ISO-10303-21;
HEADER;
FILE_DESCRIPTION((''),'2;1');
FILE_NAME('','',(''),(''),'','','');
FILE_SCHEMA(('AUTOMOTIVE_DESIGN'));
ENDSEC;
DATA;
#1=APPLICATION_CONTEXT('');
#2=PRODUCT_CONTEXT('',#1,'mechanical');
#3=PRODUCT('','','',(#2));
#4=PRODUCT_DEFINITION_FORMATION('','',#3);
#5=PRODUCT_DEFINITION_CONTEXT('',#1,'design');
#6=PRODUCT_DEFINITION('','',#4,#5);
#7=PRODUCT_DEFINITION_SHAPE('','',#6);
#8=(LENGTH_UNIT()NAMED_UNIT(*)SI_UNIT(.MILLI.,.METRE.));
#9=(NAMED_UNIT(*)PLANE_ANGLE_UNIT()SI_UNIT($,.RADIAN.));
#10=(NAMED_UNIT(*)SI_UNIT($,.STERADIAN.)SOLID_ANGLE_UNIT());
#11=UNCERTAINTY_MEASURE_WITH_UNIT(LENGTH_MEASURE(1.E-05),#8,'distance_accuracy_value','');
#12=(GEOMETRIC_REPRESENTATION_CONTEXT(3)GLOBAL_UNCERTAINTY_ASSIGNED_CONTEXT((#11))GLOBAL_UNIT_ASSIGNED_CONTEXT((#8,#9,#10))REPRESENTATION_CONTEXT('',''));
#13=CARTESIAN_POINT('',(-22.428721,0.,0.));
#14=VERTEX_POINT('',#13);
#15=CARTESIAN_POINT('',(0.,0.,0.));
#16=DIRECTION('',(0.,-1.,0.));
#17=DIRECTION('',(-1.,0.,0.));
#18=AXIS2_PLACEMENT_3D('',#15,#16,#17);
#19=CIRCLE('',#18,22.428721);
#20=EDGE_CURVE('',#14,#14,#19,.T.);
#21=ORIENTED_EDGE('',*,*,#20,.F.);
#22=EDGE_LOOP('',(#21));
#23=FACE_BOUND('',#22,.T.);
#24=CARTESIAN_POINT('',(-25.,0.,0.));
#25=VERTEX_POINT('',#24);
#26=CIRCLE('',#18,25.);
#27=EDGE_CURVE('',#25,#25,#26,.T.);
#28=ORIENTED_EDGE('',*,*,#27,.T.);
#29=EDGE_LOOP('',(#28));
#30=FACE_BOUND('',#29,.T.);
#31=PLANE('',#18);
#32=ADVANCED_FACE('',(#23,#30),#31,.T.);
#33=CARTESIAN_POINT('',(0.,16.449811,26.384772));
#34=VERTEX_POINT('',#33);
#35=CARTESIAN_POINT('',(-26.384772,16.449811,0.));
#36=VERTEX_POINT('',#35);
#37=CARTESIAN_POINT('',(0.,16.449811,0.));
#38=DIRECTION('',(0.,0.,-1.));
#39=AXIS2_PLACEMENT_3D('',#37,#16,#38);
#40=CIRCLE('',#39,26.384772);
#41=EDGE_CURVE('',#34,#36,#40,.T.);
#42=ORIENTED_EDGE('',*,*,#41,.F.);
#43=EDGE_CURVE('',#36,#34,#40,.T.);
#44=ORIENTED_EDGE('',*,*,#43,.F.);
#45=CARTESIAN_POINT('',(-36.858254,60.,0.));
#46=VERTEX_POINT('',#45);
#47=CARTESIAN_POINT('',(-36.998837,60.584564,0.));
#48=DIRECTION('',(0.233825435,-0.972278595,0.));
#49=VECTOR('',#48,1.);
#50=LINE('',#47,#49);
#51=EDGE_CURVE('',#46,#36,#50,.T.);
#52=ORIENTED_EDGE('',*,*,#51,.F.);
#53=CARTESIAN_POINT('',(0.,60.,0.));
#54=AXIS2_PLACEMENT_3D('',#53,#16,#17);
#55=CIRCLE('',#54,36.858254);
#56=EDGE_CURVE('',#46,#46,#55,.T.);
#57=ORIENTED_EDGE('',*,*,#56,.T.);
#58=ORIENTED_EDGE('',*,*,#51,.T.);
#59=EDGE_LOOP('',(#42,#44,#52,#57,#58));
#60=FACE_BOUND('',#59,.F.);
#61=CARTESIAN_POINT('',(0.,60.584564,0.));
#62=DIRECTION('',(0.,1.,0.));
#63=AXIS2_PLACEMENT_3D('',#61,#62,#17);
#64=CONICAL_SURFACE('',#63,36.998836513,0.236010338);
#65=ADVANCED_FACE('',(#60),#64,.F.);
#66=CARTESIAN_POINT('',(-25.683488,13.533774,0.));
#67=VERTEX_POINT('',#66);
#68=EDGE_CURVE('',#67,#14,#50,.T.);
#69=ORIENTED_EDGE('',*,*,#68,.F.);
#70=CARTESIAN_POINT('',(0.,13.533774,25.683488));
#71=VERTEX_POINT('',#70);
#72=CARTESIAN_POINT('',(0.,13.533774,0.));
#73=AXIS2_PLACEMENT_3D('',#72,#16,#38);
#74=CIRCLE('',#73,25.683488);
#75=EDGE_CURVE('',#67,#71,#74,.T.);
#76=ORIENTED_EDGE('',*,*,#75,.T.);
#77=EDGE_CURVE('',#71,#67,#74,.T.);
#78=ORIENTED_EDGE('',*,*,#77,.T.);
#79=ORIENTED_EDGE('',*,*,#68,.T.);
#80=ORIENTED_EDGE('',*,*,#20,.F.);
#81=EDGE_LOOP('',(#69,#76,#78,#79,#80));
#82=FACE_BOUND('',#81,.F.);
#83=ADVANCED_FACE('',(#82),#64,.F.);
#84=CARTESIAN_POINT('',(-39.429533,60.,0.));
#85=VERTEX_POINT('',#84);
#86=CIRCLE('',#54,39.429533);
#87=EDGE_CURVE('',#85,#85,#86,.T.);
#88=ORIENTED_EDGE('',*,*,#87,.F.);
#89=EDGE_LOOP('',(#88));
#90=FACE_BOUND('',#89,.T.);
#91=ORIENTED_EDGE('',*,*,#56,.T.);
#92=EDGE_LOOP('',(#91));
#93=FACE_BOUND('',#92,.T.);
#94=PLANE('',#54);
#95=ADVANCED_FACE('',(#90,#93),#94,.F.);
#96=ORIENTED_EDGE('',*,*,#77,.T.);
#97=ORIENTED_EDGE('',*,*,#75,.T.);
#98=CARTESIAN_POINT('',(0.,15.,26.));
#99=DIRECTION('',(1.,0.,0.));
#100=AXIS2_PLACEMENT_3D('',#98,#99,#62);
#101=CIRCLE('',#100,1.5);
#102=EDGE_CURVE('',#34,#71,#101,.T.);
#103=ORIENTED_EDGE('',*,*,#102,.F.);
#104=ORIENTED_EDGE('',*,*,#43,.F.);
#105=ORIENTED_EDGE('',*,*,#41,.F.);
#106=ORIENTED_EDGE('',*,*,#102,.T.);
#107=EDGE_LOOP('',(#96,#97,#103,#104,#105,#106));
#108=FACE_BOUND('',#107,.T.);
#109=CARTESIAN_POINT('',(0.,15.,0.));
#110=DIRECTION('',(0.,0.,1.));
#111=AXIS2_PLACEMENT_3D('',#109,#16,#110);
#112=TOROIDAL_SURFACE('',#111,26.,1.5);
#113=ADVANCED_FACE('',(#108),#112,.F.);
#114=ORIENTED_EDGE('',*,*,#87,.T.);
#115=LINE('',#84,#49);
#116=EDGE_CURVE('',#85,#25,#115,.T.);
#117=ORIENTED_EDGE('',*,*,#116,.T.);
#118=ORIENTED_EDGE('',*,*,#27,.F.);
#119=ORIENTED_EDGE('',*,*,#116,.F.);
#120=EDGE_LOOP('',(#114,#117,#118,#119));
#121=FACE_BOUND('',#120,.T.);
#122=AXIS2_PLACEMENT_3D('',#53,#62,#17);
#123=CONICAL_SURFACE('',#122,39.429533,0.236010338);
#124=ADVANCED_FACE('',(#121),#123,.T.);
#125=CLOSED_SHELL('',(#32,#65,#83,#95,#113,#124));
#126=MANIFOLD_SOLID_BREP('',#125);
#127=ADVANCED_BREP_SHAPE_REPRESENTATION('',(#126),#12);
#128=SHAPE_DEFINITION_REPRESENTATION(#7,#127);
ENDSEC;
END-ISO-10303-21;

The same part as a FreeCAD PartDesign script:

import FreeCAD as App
import Part
import Sketcher


def faces_at(feature, points):
    """Names of the faces that lie closest to the given points."""
    faces = feature.Shape.Faces
    near = lambda p: min(range(len(faces)), key=lambda i: faces[i].distToShape(Part.Vertex(*p))[0])
    return sorted({f"Face{near(p) + 1}" for p in points})

doc = App.newDocument("Part")
body = doc.addObject("PartDesign::Body", "Body")

# Sketch on XY plane
sketch1 = body.newObject("Sketcher::SketchObject", "Sketch")
sketch1.AttachmentSupport = (doc.getObject("XY_Plane"), [""])
sketch1.MapMode = "FlatFace"
sketch1.addGeometry(Part.LineSegment(App.Vector(-39, 60, 0), App.Vector(-25, 0, 0)), False)
sketch1.addGeometry(Part.LineSegment(App.Vector(-25, 0, 0), App.Vector(0, 0, 0)), False)
sketch1.addGeometry(Part.LineSegment(App.Vector(0, 0, 0), App.Vector(0, 60, 0)), False)
sketch1.addGeometry(Part.LineSegment(App.Vector(0, 60, 0), App.Vector(-39, 60, 0)), False)
sketch1.addConstraint(Sketcher.Constraint("Coincident", 0, 2, 1, 1))
sketch1.addConstraint(Sketcher.Constraint("Coincident", 1, 2, 2, 1))
sketch1.addConstraint(Sketcher.Constraint("Coincident", 2, 2, 3, 1))
sketch1.addConstraint(Sketcher.Constraint("Coincident", 3, 2, 0, 1))
sketch1.addConstraint(Sketcher.Constraint("Horizontal", 1))
sketch1.addConstraint(Sketcher.Constraint("Vertical", 2))
sketch1.addConstraint(Sketcher.Constraint("Horizontal", 3))
sketch1.addConstraint(Sketcher.Constraint("Coincident", 1, 2, -1, 1))
sketch1.addConstraint(Sketcher.Constraint("DistanceX", 1, 1, 1, 2, 25.0))
sketch1.addConstraint(Sketcher.Constraint("DistanceY", 2, 1, 2, 2, 60.0))
sketch1.addConstraint(Sketcher.Constraint("DistanceX", 3, 2, 3, 1, 39.429533))
revolution = body.newObject("PartDesign::Revolution", "Revolution")
revolution.Profile = sketch1
revolution.ReferenceAxis = (sketch1, ["V_Axis"])
revolution.Angle = 360
doc.recompute()

thickness = body.newObject("PartDesign::Thickness", "Thickness")
thickness.Base = (revolution, faces_at(revolution, [(0, 60, 0), (0, 0, 0)]))
thickness.Value = 2.5
thickness.Reversed = True
thickness.Join = "Arc"

# Sketch on YZ plane
sketch2 = body.newObject("Sketcher::SketchObject", "Sketch001")
sketch2.AttachmentSupport = (doc.getObject("YZ_Plane"), [""])
sketch2.MapMode = "FlatFace"
sketch2.addGeometry(Part.Circle(App.Vector(15, 26, 0), App.Vector(0, 0, 1), 1.5), False)
sketch2.addConstraint(Sketcher.Constraint("Diameter", 0, 3.0))
sketch2.addConstraint(Sketcher.Constraint("DistanceX", -1, 1, 0, 3, 15.0))
sketch2.addConstraint(Sketcher.Constraint("DistanceY", -1, 1, 0, 3, 26.0))
groove = body.newObject("PartDesign::Groove", "Groove")
groove.Profile = sketch2
groove.ReferenceAxis = (sketch2, ["H_Axis"])
groove.Angle = 360

doc.recompute()
